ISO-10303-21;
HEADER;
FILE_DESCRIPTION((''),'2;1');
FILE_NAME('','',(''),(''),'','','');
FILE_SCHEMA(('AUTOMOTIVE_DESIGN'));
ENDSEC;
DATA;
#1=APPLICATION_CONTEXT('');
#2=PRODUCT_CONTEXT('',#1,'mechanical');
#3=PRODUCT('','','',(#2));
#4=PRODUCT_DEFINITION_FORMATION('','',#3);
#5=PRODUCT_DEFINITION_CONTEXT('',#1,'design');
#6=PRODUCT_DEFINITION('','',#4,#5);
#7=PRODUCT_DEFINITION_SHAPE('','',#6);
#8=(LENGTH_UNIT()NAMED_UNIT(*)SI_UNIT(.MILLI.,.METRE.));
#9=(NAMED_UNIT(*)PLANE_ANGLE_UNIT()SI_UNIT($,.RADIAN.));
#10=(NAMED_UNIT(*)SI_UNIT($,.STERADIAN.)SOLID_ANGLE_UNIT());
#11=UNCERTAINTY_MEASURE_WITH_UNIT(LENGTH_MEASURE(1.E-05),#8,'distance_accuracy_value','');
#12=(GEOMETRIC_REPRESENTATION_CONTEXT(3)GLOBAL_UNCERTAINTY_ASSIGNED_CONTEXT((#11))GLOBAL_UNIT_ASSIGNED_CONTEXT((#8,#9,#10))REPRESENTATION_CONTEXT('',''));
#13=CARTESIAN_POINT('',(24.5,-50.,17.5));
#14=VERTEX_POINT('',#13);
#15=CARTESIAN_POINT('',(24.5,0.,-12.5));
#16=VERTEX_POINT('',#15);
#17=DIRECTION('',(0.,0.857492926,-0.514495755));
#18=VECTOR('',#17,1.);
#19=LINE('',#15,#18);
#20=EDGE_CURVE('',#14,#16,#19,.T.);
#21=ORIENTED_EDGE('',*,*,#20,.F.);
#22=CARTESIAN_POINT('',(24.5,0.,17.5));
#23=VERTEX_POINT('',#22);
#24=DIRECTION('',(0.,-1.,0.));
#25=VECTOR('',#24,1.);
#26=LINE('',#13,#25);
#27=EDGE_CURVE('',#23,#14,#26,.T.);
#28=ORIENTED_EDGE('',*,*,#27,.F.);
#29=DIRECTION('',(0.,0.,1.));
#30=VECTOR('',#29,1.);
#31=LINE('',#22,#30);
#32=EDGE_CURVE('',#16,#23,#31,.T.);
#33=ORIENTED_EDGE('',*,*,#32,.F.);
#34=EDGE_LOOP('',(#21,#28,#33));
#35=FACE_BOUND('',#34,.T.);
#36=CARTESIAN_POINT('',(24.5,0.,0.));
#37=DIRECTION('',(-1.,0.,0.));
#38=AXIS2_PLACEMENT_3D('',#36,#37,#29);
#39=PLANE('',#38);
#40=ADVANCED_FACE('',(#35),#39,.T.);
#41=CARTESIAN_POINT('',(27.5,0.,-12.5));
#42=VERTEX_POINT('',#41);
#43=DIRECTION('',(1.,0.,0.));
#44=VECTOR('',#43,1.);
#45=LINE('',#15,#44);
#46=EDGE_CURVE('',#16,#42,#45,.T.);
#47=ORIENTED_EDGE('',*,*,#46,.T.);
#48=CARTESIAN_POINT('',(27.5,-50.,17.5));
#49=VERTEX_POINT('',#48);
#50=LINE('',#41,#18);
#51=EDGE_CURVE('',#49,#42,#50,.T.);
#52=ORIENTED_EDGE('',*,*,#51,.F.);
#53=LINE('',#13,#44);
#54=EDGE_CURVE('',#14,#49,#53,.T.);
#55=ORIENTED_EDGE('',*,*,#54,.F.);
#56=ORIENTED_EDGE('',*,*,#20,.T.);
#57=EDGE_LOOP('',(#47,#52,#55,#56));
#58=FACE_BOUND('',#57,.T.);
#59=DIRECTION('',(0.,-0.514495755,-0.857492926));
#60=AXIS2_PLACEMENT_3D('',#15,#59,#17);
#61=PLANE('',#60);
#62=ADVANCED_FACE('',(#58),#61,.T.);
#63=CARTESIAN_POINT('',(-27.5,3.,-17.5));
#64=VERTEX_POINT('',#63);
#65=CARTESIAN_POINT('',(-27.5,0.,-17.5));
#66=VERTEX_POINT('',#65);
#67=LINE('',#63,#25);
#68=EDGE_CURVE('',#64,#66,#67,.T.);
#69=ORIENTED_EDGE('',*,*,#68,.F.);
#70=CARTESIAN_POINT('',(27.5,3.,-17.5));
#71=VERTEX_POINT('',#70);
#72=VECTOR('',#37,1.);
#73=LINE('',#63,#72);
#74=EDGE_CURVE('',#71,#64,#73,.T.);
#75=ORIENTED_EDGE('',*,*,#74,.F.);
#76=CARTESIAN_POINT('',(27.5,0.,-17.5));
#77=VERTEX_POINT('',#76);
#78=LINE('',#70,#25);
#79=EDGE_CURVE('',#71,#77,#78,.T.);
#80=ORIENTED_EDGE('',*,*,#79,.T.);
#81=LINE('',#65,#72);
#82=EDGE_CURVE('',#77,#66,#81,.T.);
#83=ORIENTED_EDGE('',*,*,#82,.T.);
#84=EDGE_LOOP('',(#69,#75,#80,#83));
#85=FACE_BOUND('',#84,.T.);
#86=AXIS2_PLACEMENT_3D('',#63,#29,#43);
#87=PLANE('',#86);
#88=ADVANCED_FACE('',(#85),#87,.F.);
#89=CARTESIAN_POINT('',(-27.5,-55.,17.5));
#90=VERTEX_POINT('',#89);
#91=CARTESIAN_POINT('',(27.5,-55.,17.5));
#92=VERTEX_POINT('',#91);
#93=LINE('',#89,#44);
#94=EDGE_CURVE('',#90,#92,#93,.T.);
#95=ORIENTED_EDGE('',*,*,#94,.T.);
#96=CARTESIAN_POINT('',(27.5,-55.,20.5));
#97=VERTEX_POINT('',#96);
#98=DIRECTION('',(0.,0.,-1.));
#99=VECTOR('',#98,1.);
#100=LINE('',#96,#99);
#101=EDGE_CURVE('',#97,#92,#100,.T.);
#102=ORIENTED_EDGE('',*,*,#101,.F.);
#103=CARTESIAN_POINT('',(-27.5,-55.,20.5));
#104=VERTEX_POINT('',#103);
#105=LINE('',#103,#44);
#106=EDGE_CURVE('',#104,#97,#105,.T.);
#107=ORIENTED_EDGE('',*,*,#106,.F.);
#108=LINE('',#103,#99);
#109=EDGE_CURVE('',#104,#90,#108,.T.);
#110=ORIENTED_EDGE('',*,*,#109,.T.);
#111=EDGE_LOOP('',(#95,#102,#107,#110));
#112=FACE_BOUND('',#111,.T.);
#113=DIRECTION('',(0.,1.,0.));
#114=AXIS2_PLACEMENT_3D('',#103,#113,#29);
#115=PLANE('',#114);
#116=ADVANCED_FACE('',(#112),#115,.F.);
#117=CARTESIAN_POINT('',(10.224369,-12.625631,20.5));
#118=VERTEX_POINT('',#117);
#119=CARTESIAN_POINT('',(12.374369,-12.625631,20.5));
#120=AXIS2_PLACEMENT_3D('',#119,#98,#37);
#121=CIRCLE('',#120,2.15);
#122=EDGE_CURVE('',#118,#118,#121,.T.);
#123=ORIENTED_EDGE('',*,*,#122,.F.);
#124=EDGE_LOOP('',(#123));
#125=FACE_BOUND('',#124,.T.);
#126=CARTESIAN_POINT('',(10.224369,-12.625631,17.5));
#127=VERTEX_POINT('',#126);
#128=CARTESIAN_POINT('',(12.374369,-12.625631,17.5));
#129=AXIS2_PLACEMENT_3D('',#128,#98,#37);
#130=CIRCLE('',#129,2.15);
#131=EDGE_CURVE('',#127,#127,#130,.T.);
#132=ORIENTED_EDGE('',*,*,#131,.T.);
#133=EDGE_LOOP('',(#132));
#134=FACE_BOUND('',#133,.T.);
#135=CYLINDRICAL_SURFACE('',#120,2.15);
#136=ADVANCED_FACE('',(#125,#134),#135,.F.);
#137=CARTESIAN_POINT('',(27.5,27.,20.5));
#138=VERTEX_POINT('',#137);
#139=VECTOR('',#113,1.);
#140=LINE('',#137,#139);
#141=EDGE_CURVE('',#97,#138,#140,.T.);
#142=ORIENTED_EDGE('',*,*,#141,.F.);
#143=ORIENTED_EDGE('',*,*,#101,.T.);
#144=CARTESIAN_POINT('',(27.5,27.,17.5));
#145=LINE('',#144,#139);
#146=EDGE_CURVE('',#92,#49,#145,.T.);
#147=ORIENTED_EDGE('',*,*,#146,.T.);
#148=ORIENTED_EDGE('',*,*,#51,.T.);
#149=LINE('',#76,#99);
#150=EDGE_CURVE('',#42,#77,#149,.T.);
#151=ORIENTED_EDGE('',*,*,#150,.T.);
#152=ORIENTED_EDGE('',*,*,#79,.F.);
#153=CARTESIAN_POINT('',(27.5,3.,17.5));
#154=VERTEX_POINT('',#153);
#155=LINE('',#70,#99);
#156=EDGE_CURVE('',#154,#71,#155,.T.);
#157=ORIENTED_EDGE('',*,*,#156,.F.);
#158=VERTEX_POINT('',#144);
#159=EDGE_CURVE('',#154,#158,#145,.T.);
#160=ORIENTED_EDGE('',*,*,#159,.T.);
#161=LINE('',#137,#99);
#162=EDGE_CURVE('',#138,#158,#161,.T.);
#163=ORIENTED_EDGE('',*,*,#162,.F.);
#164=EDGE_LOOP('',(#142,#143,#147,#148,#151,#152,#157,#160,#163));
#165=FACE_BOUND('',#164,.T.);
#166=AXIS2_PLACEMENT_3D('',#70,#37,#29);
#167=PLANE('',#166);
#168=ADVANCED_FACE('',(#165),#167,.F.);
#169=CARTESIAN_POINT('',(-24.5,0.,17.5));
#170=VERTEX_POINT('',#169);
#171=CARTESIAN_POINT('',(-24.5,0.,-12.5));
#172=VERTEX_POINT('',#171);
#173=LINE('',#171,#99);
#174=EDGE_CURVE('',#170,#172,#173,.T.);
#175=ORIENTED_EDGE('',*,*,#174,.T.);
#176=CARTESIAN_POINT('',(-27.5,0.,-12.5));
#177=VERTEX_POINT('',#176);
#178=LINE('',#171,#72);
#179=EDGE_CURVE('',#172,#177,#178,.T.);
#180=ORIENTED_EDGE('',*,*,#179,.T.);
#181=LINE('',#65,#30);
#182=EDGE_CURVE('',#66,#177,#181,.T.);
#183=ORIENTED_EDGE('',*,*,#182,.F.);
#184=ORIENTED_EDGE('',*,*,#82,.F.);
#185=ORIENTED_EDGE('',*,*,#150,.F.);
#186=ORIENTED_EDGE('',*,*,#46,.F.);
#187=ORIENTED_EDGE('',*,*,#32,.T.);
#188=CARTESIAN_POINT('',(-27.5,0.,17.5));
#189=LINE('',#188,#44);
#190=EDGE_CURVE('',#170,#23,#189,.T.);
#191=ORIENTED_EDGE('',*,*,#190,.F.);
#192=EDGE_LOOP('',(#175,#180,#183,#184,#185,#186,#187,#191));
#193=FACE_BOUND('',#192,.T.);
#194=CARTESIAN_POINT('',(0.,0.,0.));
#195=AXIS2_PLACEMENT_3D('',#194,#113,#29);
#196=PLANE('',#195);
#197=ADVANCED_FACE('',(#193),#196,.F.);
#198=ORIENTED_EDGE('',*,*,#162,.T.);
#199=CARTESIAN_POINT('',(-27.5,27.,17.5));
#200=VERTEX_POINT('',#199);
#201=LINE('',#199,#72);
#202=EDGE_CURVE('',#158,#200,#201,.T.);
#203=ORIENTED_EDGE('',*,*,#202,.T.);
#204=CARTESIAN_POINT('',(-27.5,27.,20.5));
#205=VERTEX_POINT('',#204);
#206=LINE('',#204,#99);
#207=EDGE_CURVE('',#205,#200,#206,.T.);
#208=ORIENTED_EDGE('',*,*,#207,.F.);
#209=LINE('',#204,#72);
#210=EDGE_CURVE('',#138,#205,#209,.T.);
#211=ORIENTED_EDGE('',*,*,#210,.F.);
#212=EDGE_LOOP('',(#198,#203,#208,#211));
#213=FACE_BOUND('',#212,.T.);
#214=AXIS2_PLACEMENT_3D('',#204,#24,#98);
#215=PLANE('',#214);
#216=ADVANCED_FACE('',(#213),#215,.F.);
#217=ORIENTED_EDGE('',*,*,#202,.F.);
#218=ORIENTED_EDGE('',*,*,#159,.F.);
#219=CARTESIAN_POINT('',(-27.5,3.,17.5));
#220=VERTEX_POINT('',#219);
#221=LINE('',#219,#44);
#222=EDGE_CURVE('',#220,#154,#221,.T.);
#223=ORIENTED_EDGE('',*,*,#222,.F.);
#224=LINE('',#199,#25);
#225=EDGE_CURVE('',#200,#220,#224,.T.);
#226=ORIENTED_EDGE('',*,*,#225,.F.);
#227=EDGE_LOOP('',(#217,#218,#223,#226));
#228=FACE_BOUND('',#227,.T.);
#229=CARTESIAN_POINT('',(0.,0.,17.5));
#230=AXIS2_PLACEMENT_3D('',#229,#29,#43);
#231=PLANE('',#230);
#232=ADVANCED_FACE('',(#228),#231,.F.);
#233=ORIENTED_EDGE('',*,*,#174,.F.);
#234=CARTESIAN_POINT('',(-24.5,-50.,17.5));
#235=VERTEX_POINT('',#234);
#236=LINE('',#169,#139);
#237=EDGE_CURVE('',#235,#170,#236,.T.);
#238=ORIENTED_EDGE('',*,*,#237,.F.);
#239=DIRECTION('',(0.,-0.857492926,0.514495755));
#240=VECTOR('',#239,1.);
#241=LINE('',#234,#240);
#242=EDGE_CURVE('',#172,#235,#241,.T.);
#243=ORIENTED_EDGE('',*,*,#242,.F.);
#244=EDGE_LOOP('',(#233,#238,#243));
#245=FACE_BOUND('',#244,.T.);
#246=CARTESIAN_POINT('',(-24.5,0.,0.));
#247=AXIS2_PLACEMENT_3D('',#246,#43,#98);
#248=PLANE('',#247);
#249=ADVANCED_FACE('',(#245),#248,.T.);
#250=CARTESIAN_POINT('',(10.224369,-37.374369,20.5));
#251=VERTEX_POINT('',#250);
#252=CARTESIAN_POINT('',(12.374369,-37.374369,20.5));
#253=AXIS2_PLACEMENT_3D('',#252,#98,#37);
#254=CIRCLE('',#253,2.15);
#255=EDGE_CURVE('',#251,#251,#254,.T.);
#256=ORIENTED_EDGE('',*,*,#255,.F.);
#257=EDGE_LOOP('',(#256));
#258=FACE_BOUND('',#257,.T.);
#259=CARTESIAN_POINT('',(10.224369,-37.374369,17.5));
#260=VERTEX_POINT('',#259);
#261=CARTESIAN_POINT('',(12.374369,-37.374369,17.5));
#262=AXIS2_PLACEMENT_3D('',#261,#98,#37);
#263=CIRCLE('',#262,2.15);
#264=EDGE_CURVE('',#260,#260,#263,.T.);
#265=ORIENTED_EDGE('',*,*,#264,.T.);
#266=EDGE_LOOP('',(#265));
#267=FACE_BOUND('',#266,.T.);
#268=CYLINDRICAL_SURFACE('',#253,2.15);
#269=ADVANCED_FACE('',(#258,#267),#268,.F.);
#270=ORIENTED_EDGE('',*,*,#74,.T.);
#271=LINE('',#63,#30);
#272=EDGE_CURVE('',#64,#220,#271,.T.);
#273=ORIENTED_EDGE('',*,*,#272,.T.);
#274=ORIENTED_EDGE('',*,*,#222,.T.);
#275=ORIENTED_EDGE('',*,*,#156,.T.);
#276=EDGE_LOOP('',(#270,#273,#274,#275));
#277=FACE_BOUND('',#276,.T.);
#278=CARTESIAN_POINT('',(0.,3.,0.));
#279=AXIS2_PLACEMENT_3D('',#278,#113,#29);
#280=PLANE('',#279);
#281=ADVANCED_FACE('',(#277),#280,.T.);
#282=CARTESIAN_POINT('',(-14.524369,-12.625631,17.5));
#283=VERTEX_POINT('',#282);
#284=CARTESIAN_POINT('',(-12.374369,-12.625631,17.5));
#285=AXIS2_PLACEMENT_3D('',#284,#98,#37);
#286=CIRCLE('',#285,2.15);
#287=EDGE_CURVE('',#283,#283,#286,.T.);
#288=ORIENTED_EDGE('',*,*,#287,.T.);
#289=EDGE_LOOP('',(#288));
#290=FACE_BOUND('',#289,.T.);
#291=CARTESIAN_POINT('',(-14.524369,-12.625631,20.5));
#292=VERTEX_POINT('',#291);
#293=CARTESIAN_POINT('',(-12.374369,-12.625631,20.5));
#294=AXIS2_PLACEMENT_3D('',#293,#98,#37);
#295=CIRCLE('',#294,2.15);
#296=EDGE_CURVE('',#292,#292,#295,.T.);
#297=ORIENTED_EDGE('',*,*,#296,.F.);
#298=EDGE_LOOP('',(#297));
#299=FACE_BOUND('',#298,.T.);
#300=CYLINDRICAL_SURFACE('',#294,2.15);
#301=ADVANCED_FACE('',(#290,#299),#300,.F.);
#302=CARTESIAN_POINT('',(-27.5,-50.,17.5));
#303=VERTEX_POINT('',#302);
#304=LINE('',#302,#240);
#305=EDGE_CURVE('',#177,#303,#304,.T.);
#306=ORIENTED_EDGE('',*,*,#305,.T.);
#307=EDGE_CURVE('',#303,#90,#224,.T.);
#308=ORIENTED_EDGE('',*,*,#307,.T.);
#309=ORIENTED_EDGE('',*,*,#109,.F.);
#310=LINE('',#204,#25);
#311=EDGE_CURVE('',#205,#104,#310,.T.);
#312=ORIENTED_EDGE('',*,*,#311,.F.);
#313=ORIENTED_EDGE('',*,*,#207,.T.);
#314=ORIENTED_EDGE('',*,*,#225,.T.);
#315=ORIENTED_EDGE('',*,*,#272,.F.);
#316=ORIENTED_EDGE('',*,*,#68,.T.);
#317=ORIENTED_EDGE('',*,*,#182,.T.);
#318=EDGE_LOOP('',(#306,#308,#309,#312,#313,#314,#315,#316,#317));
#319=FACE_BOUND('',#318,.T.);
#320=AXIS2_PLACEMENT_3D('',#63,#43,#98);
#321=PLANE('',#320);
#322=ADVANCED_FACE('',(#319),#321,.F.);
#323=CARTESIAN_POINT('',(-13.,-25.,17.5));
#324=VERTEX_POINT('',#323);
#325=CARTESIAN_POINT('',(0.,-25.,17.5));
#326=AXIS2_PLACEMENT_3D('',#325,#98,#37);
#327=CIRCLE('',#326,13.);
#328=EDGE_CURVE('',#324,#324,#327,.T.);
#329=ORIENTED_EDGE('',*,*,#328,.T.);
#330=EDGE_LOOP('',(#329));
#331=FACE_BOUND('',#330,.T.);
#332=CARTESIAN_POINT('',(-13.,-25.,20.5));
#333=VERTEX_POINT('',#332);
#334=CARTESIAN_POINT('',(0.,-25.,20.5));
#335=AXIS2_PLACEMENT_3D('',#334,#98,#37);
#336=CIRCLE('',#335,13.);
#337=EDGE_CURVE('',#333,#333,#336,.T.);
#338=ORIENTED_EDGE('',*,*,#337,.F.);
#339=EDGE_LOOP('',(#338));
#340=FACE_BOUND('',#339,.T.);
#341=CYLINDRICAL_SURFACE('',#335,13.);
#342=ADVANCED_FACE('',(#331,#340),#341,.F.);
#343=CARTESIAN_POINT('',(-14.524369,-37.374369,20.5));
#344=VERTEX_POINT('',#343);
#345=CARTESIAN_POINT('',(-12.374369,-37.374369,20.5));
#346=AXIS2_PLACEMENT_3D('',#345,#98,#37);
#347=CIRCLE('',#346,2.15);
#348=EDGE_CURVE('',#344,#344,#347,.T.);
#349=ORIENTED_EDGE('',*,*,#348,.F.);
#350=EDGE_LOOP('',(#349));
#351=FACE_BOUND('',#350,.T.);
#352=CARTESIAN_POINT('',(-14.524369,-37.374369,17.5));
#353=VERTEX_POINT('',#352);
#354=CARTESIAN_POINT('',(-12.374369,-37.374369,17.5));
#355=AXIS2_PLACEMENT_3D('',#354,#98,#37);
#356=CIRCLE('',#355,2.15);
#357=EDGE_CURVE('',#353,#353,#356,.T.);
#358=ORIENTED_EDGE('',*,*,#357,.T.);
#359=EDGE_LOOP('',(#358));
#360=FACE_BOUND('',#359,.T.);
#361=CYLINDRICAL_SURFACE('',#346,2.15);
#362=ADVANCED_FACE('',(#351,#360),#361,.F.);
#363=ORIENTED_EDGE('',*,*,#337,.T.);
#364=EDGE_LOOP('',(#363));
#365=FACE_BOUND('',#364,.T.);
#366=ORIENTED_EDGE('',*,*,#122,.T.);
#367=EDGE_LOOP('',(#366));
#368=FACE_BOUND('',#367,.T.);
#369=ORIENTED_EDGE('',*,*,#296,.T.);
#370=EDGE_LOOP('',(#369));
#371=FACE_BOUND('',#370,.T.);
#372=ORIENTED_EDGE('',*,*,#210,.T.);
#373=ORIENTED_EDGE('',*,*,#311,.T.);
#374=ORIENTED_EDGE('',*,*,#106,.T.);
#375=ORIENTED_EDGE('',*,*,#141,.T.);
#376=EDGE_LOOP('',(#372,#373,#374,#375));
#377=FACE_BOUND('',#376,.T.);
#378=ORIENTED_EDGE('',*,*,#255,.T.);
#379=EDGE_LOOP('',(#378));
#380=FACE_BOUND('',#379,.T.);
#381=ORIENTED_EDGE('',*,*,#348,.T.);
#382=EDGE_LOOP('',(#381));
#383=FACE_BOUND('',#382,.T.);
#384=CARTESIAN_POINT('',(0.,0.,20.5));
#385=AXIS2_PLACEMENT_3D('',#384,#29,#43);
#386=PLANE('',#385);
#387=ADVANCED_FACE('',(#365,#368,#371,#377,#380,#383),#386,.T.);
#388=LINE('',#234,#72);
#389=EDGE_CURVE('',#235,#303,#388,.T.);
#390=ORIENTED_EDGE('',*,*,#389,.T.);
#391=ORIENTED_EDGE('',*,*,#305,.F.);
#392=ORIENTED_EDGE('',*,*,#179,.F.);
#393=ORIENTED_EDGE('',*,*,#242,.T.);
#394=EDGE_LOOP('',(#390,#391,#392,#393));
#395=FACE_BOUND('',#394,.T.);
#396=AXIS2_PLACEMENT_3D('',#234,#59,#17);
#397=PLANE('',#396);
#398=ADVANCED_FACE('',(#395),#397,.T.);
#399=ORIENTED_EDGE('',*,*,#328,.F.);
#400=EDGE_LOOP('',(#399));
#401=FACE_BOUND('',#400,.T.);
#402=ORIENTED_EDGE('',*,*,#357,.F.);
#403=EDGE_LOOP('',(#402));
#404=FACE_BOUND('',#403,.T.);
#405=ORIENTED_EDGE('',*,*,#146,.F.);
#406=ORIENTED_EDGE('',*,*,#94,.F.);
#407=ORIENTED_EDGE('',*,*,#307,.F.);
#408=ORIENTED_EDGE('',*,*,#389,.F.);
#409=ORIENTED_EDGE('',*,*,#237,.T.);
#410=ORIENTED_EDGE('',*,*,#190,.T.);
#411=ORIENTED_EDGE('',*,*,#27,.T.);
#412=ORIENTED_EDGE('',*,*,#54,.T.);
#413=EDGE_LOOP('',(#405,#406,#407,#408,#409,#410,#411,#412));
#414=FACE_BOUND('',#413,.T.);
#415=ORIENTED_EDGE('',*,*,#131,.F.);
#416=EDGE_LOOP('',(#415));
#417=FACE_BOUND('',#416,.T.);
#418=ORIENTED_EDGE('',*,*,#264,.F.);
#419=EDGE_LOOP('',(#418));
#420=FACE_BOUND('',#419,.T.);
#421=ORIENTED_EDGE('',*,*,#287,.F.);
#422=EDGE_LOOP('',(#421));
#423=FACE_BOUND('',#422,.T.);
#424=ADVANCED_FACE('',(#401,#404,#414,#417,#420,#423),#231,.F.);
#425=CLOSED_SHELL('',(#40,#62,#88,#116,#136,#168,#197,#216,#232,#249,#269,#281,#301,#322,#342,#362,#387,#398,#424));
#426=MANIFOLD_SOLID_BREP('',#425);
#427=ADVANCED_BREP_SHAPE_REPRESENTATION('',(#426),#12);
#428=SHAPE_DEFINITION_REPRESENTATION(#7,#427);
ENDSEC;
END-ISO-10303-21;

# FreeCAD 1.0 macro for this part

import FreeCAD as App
import Part
import Sketcher


def add_polygon(sketch, points):
    """Adds a closed chain of lines whose ends are joined by coincident constraints."""
    first, n = sketch.GeometryCount, len(points)
    for a, b in zip(points, points[1:] + points[:1]):
        sketch.addGeometry(Part.LineSegment(App.Vector(*a, 0), App.Vector(*b, 0)), False)
    for i in range(n):
        sketch.addConstraint(Sketcher.Constraint("Coincident", first + i, 2, first + (i + 1) % n, 1))

doc = App.newDocument("Part")
body = doc.addObject("PartDesign::Body", "Body")

sketch1 = body.newObject("Sketcher::SketchObject", "Sketch")
sketch1.AttachmentSupport = (doc.getObject("XZ_Plane"), [""])
sketch1.MapMode = "FlatFace"
add_polygon(sketch1, [(-28, -18), (-28, 18), (28, 18), (28, -18)])
sketch1.addConstraint(Sketcher.Constraint("Vertical", 0))
sketch1.addConstraint(Sketcher.Constraint("Horizontal", 1))
sketch1.addConstraint(Sketcher.Constraint("Vertical", 2))
sketch1.addConstraint(Sketcher.Constraint("Horizontal", 3))
sketch1.addConstraint(Sketcher.Constraint("Symmetric", 0, 2, 2, 2, -1, 1))
sketch1.addConstraint(Sketcher.Constraint("DistanceX", 1, 1, 1, 2, 55.0))
sketch1.addConstraint(Sketcher.Constraint("DistanceY", 0, 1, 0, 2, 35.0))
pad1 = body.newObject("PartDesign::Pad", "Pad")
pad1.Profile = sketch1
pad1.Length = 3
pad1.Reversed = True

sketch2 = body.newObject("Sketcher::SketchObject", "Sketch001")
sketch2.AttachmentSupport = (doc.getObject("XY_Plane"), [""])
sketch2.MapMode = "FlatFace"
sketch2.AttachmentOffset = App.Placement(App.Vector(0, 0, 17.5), App.Rotation())
add_polygon(sketch2, [(-28, 27), (-28, -55), (28, -55), (28, 27)])
sketch2.addConstraint(Sketcher.Constraint("Vertical", 0))
sketch2.addConstraint(Sketcher.Constraint("Horizontal", 1))
sketch2.addConstraint(Sketcher.Constraint("Vertical", 2))
sketch2.addConstraint(Sketcher.Constraint("Horizontal", 3))
sketch2.addConstraint(Sketcher.Constraint("DistanceX", 1, 1, 1, 2, 55.0))
sketch2.addConstraint(Sketcher.Constraint("DistanceY", 0, 2, 0, 1, 82.0))
sketch2.addConstraint(Sketcher.Constraint("DistanceY", 0, 2, -1, 1, 55.0))
sketch2.addConstraint(Sketcher.Constraint("DistanceX", 0, 2, -1, 1, 27.5))
pad2 = body.newObject("PartDesign::Pad", "Pad001")
pad2.Profile = sketch2
pad2.Length = 3

sketch3 = body.newObject("Sketcher::SketchObject", "Sketch002")
sketch3.AttachmentSupport = (doc.getObject("YZ_Plane"), [""])
sketch3.MapMode = "FlatFace"
sketch3.AttachmentOffset = App.Placement(App.Vector(0, 0, 27.5), App.Rotation())
add_polygon(sketch3, [(0, -12), (0, 18), (-50, 18)])
sketch3.addConstraint(Sketcher.Constraint("Vertical", 0))
sketch3.addConstraint(Sketcher.Constraint("Horizontal", 1))
sketch3.addConstraint(Sketcher.Constraint("PointOnObject", 0, 2, -2))
sketch3.addConstraint(Sketcher.Constraint("DistanceX", 1, 2, 1, 1, 50.0))
sketch3.addConstraint(Sketcher.Constraint("DistanceY", 0, 1, 0, 2, 30.0))
sketch3.addConstraint(Sketcher.Constraint("DistanceY", -1, 1, 0, 2, 17.5))
pad3 = body.newObject("PartDesign::Pad", "Pad002")
pad3.Profile = sketch3
pad3.Length = 3
pad3.Reversed = True

sketch4 = body.newObject("Sketcher::SketchObject", "Sketch003")
sketch4.AttachmentSupport = (doc.getObject("YZ_Plane"), [""])
sketch4.MapMode = "FlatFace"
sketch4.AttachmentOffset = App.Placement(App.Vector(0, 0, -27.5), App.Rotation())
add_polygon(sketch4, [(0, 18), (0, -12), (-50, 18)])
sketch4.addConstraint(Sketcher.Constraint("Vertical", 0))
sketch4.addConstraint(Sketcher.Constraint("Horizontal", 2))
sketch4.addConstraint(Sketcher.Constraint("PointOnObject", 0, 2, -2))
sketch4.addConstraint(Sketcher.Constraint("DistanceX", 2, 1, 2, 2, 50.0))
sketch4.addConstraint(Sketcher.Constraint("DistanceY", 0, 2, 0, 1, 30.0))
sketch4.addConstraint(Sketcher.Constraint("DistanceY", 0, 2, -1, 1, 12.5))
pad4 = body.newObject("PartDesign::Pad", "Pad003")
pad4.Profile = sketch4
pad4.Length = 3

sketch5 = body.newObject("Sketcher::SketchObject", "Sketch004")
sketch5.AttachmentSupport = (doc.getObject("XY_Plane"), [""])
sketch5.MapMode = "FlatFace"
sketch5.AttachmentOffset = App.Placement(App.Vector(0, 0, 17.5), App.Rotation())
sketch5.addGeometry(Part.Circle(App.Vector(0, -25, 0), App.Vector(0, 0, 1), 13), False)
sketch5.addGeometry(Part.Circle(App.Vector(-12.4, -12.6, 0), App.Vector(0, 0, 1), 2.1), False)
sketch5.addGeometry(Part.Circle(App.Vector(-12.4, -37.4, 0), App.Vector(0, 0, 1), 2.1), False)
sketch5.addGeometry(Part.Circle(App.Vector(12.4, -37.4, 0), App.Vector(0, 0, 1), 2.1), False)
sketch5.addGeometry(Part.Circle(App.Vector(12.4, -12.6, 0), App.Vector(0, 0, 1), 2.1), False)
sketch5.addConstraint(Sketcher.Constraint("Equal", 1, 2))
sketch5.addConstraint(Sketcher.Constraint("Equal", 2, 3))
sketch5.addConstraint(Sketcher.Constraint("Equal", 3, 4))
sketch5.addConstraint(Sketcher.Constraint("Symmetric", 2, 3, 3, 3, -2))
sketch5.addConstraint(Sketcher.Constraint("Symmetric", 1, 3, 4, 3, -2))
sketch5.addConstraint(Sketcher.Constraint("PointOnObject", 0, 3, -2))
sketch5.addConstraint(Sketcher.Constraint("Vertical", 1, 3, 2, 3))
sketch5.addConstraint(Sketcher.Constraint("Diameter", 0, 26.0))
sketch5.addConstraint(Sketcher.Constraint("Diameter", 1, 4.3))
sketch5.addConstraint(Sketcher.Constraint("DistanceY", 0, 3, -1, 1, 25.0))
sketch5.addConstraint(Sketcher.Constraint("DistanceX", 1, 3, -1, 1, 12.374369))
sketch5.addConstraint(Sketcher.Constraint("DistanceY", 1, 3, -1, 1, 12.625631))
sketch5.addConstraint(Sketcher.Constraint("DistanceY", 2, 3, -1, 1, 37.374369))
pocket1 = body.newObject("PartDesign::Pocket", "Pocket")
pocket1.Profile = sketch5
pocket1.Length = 3
pocket1.Reversed = True

doc.recompute()
